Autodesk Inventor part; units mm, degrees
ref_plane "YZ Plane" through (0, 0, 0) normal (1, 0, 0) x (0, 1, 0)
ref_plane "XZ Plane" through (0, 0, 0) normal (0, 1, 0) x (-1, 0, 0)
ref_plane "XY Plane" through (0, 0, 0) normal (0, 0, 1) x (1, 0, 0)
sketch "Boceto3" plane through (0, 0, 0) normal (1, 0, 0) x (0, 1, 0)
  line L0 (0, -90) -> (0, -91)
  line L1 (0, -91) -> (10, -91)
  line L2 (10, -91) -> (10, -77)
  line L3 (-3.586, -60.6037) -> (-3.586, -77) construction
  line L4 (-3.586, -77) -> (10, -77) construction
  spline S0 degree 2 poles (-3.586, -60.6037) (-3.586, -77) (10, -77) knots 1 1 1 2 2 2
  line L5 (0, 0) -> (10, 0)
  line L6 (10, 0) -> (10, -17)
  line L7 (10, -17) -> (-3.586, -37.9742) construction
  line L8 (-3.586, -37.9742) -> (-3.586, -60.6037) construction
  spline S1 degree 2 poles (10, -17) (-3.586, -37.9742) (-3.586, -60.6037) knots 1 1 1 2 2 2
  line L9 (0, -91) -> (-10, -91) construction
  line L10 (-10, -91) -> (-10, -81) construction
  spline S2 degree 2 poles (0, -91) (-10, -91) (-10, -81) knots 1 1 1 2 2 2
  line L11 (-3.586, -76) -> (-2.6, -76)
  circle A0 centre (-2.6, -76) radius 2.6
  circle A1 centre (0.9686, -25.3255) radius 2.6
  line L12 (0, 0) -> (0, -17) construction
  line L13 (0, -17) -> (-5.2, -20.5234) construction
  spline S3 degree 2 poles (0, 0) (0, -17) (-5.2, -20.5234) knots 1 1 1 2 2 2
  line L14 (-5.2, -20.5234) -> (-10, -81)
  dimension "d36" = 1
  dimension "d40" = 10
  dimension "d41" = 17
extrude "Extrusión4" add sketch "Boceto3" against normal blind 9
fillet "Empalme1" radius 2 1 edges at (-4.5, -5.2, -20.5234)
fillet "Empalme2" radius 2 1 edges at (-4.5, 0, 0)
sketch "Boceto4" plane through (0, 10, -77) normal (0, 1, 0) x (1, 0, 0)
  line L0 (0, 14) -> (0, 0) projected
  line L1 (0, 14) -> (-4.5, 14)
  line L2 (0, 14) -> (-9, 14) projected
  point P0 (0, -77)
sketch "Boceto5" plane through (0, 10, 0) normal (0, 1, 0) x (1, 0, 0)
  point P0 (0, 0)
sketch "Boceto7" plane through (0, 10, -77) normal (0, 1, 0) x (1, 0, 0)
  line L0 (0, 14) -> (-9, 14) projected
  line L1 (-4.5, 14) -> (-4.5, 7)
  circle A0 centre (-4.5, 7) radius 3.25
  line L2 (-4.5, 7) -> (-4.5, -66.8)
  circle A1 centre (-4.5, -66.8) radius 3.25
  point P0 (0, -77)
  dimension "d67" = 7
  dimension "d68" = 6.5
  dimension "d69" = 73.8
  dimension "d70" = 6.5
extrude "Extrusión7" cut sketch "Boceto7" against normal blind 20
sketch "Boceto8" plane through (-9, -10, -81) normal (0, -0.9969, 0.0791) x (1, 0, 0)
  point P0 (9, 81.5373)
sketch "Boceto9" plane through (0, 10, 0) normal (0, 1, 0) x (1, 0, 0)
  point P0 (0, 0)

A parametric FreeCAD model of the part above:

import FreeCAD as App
import Part
import Sketcher
from FreeCAD import Vector
Q = App.Units.Quantity


def edges_at(feature, points):
    """Names of the edges that pass closest to the given points."""
    edges = feature.Shape.Edges
    near = lambda p: min(range(len(edges)), key=lambda i: edges[i].distToShape(Part.Vertex(*p))[0])
    return sorted({f"Edge{near(p) + 1}" for p in points})

doc = App.newDocument("Part")
body = doc.addObject("PartDesign::Body", "Body")

sketch1 = doc.addObject("Sketcher::SketchObject", "Sketch")
body.addObject(sketch1)
sketch1.AttachmentSupport = (doc.YZ_Plane, [""])
sketch1.MapMode = "FlatFace"
sketch1.addGeometry(Part.BSplineCurve([Vector(0, -91, 0), Vector(-10, -91, 0), Vector(-10, -81, 0)], [3, 3], [1, 2], False, 2, [1, 1, 1], False), False)
sketch1.addGeometry(Part.LineSegment(Vector(0, -91, 0), Vector(10, -91, 0)), False)
sketch1.addGeometry(Part.LineSegment(Vector(10, -91, 0), Vector(10, -77, 0)), False)
sketch1.addGeometry(Part.BSplineCurve([Vector(-3.586, -60.6037, 0), Vector(-3.586, -77, 0), Vector(10, -77, 0)], [3, 3], [1, 2], False, 2, [1, 1, 1], False), False)
sketch1.addGeometry(Part.BSplineCurve([Vector(10, -17, 0), Vector(-3.586, -37.9742, 0), Vector(-3.586, -60.6037, 0)], [3, 3], [1, 2], False, 2, [1, 1, 1], False), False)
sketch1.addGeometry(Part.LineSegment(Vector(10, -17, 0), Vector(10, 0, 0)), False)
sketch1.addGeometry(Part.LineSegment(Vector(10, 0, 0), Vector(0, 0, 0)), False)
sketch1.addGeometry(Part.BSplineCurve([Vector(0, 0, 0), Vector(0, -17, 0), Vector(-5.2, -20.5234, 0)], [3, 3], [1, 2], False, 2, [1, 1, 1], False), False)
sketch1.addGeometry(Part.LineSegment(Vector(-5.2, -20.5234, 0), Vector(-10, -81, 0)), False)
sketch1.addGeometry(Part.Circle(Vector(-2.6, -76, 0), Vector(0, 0, 1), 2.6), False)
sketch1.addGeometry(Part.Circle(Vector(0.9686, -25.3255, 0), Vector(0, 0, 1), 2.6), False)
sketch1.addConstraint(Sketcher.Constraint("Block", 0))
sketch1.addConstraint(Sketcher.Constraint("Block", 3))
sketch1.addConstraint(Sketcher.Constraint("Block", 4))
sketch1.addConstraint(Sketcher.Constraint("Block", 7))
sketch1.addConstraint(Sketcher.Constraint("Coincident", 0, 1, 1, 1))
sketch1.addConstraint(Sketcher.Constraint("Coincident", 1, 2, 2, 1))
sketch1.addConstraint(Sketcher.Constraint("Coincident", 2, 2, 3, 2))
sketch1.addConstraint(Sketcher.Constraint("Coincident", 4, 1, 5, 1))
sketch1.addConstraint(Sketcher.Constraint("Coincident", 5, 2, 6, 1))
sketch1.addConstraint(Sketcher.Constraint("Coincident", 6, 2, 7, 1))
sketch1.addConstraint(Sketcher.Constraint("Coincident", 7, 2, 8, 1))
sketch1.addConstraint(Sketcher.Constraint("Coincident", 8, 2, 0, 2))
sketch1.addConstraint(Sketcher.Constraint("Horizontal", 1))
sketch1.addConstraint(Sketcher.Constraint("Vertical", 2))
sketch1.addConstraint(Sketcher.Constraint("Vertical", 5))
sketch1.addConstraint(Sketcher.Constraint("Horizontal", 6))
sketch1.addConstraint(Sketcher.Constraint("Equal", 9, 10))
sketch1.addConstraint(Sketcher.Constraint("DistanceY", 2, 2, 9, 3, Q("1 mm")))
sketch1.addConstraint(Sketcher.Constraint("Diameter", 9, Q("5.2 mm")))
sketch1.addConstraint(Sketcher.Constraint("DistanceX", 9, 3, -1, 1, Q("2.6 mm")))
sketch1.addConstraint(Sketcher.Constraint("DistanceX", -1, 1, 10, 3, Q("0.9686 mm")))
sketch1.addConstraint(Sketcher.Constraint("DistanceY", 10, 3, -1, 1, Q("25.3255 mm")))
pad1 = doc.addObject("PartDesign::Pad", "Pad")
body.addObject(pad1)
pad1.Profile = sketch1
pad1.Length = 9
pad1.Reversed = True
doc.recompute()

fillet = doc.addObject("PartDesign::Fillet", "Fillet")
body.addObject(fillet)
fillet.Base = (pad1, edges_at(pad1, [(-4.5, -5.2, -20.523)]))
fillet.Radius = 2
doc.recompute()

fillet2 = doc.addObject("PartDesign::Fillet", "Fillet001")
body.addObject(fillet2)
fillet2.Base = (fillet, edges_at(fillet, [(-4.5, 0, 0)]))
fillet2.Radius = 2

sketch2 = doc.addObject("Sketcher::SketchObject", "Sketch001")
body.addObject(sketch2)
sketch2.AttachmentSupport = (doc.XZ_Plane, [""])
sketch2.MapMode = "FlatFace"
sketch2.AttachmentOffset = App.Placement(Vector(0, 0, -10), App.Rotation())
sketch2.addGeometry(Part.Circle(Vector(-4.5, -84, 0), Vector(0, 0, 1), 3.2), False)
sketch2.addGeometry(Part.Circle(Vector(-4.5, -10.2, 0), Vector(0, 0, 1), 3.2), False)
sketch2.addConstraint(Sketcher.Constraint("Equal", 0, 1))
sketch2.addConstraint(Sketcher.Constraint("Vertical", 0, 3, 1, 3))
sketch2.addConstraint(Sketcher.Constraint("Diameter", 0, Q("6.5 mm")))
sketch2.addConstraint(Sketcher.Constraint("DistanceY", 0, 3, 1, 3, Q("73.8 mm")))
sketch2.addConstraint(Sketcher.Constraint("DistanceY", 0, 3, -1, 1, Q("84 mm")))
sketch2.addConstraint(Sketcher.Constraint("DistanceX", 0, 3, -1, 1, Q("4.5 mm")))
pocket1 = doc.addObject("PartDesign::Pocket", "Pocket")
body.addObject(pocket1)
pocket1.Profile = sketch2
pocket1.Length = 20
pocket1.Reversed = True

doc.recompute()
